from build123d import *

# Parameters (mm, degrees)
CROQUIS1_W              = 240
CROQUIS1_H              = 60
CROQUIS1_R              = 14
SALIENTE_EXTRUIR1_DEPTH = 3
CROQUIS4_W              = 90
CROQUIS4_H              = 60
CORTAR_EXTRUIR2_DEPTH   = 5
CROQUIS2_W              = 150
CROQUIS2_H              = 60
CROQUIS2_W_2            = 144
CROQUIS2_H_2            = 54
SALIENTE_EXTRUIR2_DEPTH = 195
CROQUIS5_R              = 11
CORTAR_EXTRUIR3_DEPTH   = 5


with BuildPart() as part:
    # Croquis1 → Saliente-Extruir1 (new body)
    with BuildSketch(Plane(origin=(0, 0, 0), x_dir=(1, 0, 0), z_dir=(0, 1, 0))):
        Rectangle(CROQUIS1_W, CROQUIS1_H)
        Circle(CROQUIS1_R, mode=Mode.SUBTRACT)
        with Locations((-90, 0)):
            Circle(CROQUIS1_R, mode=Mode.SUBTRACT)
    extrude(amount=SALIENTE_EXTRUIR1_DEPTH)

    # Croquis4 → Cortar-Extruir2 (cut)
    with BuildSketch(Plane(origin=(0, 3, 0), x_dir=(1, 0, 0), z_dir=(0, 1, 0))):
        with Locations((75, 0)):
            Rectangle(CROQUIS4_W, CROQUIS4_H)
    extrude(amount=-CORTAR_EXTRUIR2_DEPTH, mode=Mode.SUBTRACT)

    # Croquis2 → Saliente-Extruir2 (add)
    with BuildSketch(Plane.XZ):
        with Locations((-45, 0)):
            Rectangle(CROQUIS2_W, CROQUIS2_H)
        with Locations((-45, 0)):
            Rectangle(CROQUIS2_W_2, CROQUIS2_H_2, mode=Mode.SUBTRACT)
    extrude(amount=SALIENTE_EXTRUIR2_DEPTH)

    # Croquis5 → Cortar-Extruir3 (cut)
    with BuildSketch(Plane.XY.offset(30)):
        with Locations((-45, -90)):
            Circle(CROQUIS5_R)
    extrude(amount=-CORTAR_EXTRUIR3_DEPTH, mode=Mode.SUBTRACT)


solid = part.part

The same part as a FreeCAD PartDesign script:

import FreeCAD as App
import Part
import Sketcher

V = App.Vector
Q = App.Units.Quantity


def add_polygon(sketch, points):
    """Adds a closed chain of lines whose ends are joined by coincident constraints."""
    first, n = sketch.GeometryCount, len(points)
    for a, b in zip(points, points[1:] + points[:1]):
        sketch.addGeometry(Part.LineSegment(App.Vector(*a, 0), App.Vector(*b, 0)), False)
    for i in range(n):
        sketch.addConstraint(Sketcher.Constraint("Coincident", first + i, 2, first + (i + 1) % n, 1))

doc = App.newDocument("Part")
params = doc.addObject("Spreadsheet::Sheet", "Params")
for row, (alias, value) in enumerate([
    ("sketch1_diameter", "28 mm"),
    ("sketch1_width", "240 mm"),
    ("sketch1_height", "60 mm"),
    ("pad1_length", "3 mm"),
    ("sketch2_width", "90 mm"),
    ("sketch2_height", "60 mm"),
    ("pocket1_length", "5 mm"),
    ("sketch3_width", "150 mm"),
    ("sketch3_width2", "144 mm"),
    ("sketch3_height", "60 mm"),
    ("sketch3_height2", "54 mm"),
    ("pad2_length", "195 mm"),
    ("sketch4_diameter", "22 mm"),
    ("pocket2_length", "5 mm"),
], start=1):
    params.set(f"A{row}", alias)
    params.set(f"B{row}", "=" + value)
    params.setAlias(f"B{row}", alias)

body = doc.addObject("PartDesign::Body", "Body")

# Sketch on XZ plane
sketch1 = doc.addObject("Sketcher::SketchObject", "Sketch")
body.addObject(sketch1)
sketch1.AttachmentSupport = (doc.XZ_Plane, [""])
sketch1.MapMode = "FlatFace"
add_polygon(sketch1, [(-120, -30), (-120, 30), (120, 30), (120, -30)])  # lines 0-3
sketch1.addGeometry(Part.Circle(V(-90, 0, 0), V(0, 0, 1), 14), False)  # 4
sketch1.addGeometry(Part.Circle(V(0, 0, 0), V(0, 0, 1), 14), False)  # 5
sketch1.addConstraint([
    Sketcher.Constraint("Vertical", 0),
    Sketcher.Constraint("Horizontal", 1),
    Sketcher.Constraint("Vertical", 2),
    Sketcher.Constraint("Horizontal", 3),
    Sketcher.Constraint("Coincident", 5, 3, -1, 1),
    Sketcher.Constraint("Equal", 4, 5),
    Sketcher.Constraint("Symmetric", 0, 2, 2, 2, -1, 1),
    Sketcher.Constraint("PointOnObject", 4, 3, -1),
    Sketcher.Constraint("Diameter", 4, Q("28 mm")),
    Sketcher.Constraint("DistanceX", 1, 1, 1, 2, Q("240 mm")),
    Sketcher.Constraint("DistanceY", 0, 1, 0, 2, Q("60 mm")),
    Sketcher.Constraint("DistanceX", 4, 3, -1, 1, Q("90 mm")),
])
sketch1.setExpression("Constraints[12]", "Params.sketch1_diameter")
sketch1.setExpression("Constraints[13]", "Params.sketch1_width")
sketch1.setExpression("Constraints[14]", "Params.sketch1_height")
pad1 = doc.addObject("PartDesign::Pad", "Pad")
body.addObject(pad1)
pad1.Profile = sketch1
pad1.setExpression("Length", "Params.pad1_length")
pad1.Reversed = True

# Sketch on XZ plane
sketch2 = doc.addObject("Sketcher::SketchObject", "Sketch001")
body.addObject(sketch2)
sketch2.AttachmentSupport = (doc.XZ_Plane, [""])
sketch2.MapMode = "FlatFace"
sketch2.AttachmentOffset = App.Placement(V(0, 0, -3), App.Rotation())
add_polygon(sketch2, [(30, -30), (30, 30), (120, 30), (120, -30)])  # lines 0-3
sketch2.addConstraint([
    Sketcher.Constraint("Vertical", 0),
    Sketcher.Constraint("Horizontal", 1),
    Sketcher.Constraint("Vertical", 2),
    Sketcher.Constraint("Horizontal", 3),
    Sketcher.Constraint("DistanceX", 1, 1, 1, 2, Q("90 mm")),
    Sketcher.Constraint("DistanceY", 0, 1, 0, 2, Q("60 mm")),
    Sketcher.Constraint("DistanceX", -1, 1, 0, 2, Q("30 mm")),
    Sketcher.Constraint("DistanceY", -1, 1, 0, 2, Q("30 mm")),
])
sketch2.setExpression("Constraints[8]", "Params.sketch2_width")
sketch2.setExpression("Constraints[9]", "Params.sketch2_height")
pocket1 = doc.addObject("PartDesign::Pocket", "Pocket")
body.addObject(pocket1)
pocket1.Profile = sketch2
pocket1.setExpression("Length", "Params.pocket1_length")
pocket1.Reversed = True

# Sketch on XZ plane
sketch3 = doc.addObject("Sketcher::SketchObject", "Sketch002")
body.addObject(sketch3)
sketch3.AttachmentSupport = (doc.XZ_Plane, [""])
sketch3.MapMode = "FlatFace"
add_polygon(sketch3, [(-120, 30), (-120, -30), (30, -30), (30, 30)])  # lines 0-3
add_polygon(sketch3, [(27, -27), (-117, -27), (-117, 27), (27, 27)])  # lines 4-7
sketch3.addConstraint([
    Sketcher.Constraint("Vertical", 0),
    Sketcher.Constraint("Horizontal", 1),
    Sketcher.Constraint("Vertical", 2),
    Sketcher.Constraint("Horizontal", 3),
    Sketcher.Constraint("Horizontal", 4),
    Sketcher.Constraint("Vertical", 5),
    Sketcher.Constraint("Horizontal", 6),
    Sketcher.Constraint("Vertical", 7),
    Sketcher.Constraint("DistanceX", 1, 1, 1, 2, Q("150 mm")),
    Sketcher.Constraint("DistanceX", 4, 2, 4, 1, Q("144 mm")),
    Sketcher.Constraint("DistanceY", 0, 2, 0, 1, Q("60 mm")),
    Sketcher.Constraint("DistanceY", 5, 1, 5, 2, Q("54 mm")),
    Sketcher.Constraint("DistanceX", 0, 2, -1, 1, Q("120 mm")),
    Sketcher.Constraint("DistanceY", 0, 2, -1, 1, Q("30 mm")),
    Sketcher.Constraint("DistanceX", 4, 2, -1, 1, Q("117 mm")),
    Sketcher.Constraint("DistanceY", 4, 2, -1, 1, Q("27 mm")),
])
sketch3.setExpression("Constraints[16]", "Params.sketch3_width")
sketch3.setExpression("Constraints[17]", "Params.sketch3_width2")
sketch3.setExpression("Constraints[18]", "Params.sketch3_height")
sketch3.setExpression("Constraints[19]", "Params.sketch3_height2")
pad2 = doc.addObject("PartDesign::Pad", "Pad001")
body.addObject(pad2)
pad2.Profile = sketch3
pad2.setExpression("Length", "Params.pad2_length")

# Sketch on XY plane
sketch4 = doc.addObject("Sketcher::SketchObject", "Sketch003")
body.addObject(sketch4)
sketch4.AttachmentSupport = (doc.XY_Plane, [""])
sketch4.MapMode = "FlatFace"
sketch4.AttachmentOffset = App.Placement(V(0, 0, 30), App.Rotation())
sketch4.addGeometry(Part.Circle(V(-45, -90, 0), V(0, 0, 1), 11), False)
sketch4.addConstraint([
    Sketcher.Constraint("Diameter", 0, Q("22 mm")),
    Sketcher.Constraint("DistanceX", 0, 3, -1, 1, Q("45 mm")),
    Sketcher.Constraint("DistanceY", 0, 3, -1, 1, Q("90 mm")),
])
sketch4.setExpression("Constraints[0]", "Params.sketch4_diameter")
pocket2 = doc.addObject("PartDesign::Pocket", "Pocket001")
body.addObject(pocket2)
pocket2.Profile = sketch4
pocket2.setExpression("Length", "Params.pocket2_length")

doc.recompute()
